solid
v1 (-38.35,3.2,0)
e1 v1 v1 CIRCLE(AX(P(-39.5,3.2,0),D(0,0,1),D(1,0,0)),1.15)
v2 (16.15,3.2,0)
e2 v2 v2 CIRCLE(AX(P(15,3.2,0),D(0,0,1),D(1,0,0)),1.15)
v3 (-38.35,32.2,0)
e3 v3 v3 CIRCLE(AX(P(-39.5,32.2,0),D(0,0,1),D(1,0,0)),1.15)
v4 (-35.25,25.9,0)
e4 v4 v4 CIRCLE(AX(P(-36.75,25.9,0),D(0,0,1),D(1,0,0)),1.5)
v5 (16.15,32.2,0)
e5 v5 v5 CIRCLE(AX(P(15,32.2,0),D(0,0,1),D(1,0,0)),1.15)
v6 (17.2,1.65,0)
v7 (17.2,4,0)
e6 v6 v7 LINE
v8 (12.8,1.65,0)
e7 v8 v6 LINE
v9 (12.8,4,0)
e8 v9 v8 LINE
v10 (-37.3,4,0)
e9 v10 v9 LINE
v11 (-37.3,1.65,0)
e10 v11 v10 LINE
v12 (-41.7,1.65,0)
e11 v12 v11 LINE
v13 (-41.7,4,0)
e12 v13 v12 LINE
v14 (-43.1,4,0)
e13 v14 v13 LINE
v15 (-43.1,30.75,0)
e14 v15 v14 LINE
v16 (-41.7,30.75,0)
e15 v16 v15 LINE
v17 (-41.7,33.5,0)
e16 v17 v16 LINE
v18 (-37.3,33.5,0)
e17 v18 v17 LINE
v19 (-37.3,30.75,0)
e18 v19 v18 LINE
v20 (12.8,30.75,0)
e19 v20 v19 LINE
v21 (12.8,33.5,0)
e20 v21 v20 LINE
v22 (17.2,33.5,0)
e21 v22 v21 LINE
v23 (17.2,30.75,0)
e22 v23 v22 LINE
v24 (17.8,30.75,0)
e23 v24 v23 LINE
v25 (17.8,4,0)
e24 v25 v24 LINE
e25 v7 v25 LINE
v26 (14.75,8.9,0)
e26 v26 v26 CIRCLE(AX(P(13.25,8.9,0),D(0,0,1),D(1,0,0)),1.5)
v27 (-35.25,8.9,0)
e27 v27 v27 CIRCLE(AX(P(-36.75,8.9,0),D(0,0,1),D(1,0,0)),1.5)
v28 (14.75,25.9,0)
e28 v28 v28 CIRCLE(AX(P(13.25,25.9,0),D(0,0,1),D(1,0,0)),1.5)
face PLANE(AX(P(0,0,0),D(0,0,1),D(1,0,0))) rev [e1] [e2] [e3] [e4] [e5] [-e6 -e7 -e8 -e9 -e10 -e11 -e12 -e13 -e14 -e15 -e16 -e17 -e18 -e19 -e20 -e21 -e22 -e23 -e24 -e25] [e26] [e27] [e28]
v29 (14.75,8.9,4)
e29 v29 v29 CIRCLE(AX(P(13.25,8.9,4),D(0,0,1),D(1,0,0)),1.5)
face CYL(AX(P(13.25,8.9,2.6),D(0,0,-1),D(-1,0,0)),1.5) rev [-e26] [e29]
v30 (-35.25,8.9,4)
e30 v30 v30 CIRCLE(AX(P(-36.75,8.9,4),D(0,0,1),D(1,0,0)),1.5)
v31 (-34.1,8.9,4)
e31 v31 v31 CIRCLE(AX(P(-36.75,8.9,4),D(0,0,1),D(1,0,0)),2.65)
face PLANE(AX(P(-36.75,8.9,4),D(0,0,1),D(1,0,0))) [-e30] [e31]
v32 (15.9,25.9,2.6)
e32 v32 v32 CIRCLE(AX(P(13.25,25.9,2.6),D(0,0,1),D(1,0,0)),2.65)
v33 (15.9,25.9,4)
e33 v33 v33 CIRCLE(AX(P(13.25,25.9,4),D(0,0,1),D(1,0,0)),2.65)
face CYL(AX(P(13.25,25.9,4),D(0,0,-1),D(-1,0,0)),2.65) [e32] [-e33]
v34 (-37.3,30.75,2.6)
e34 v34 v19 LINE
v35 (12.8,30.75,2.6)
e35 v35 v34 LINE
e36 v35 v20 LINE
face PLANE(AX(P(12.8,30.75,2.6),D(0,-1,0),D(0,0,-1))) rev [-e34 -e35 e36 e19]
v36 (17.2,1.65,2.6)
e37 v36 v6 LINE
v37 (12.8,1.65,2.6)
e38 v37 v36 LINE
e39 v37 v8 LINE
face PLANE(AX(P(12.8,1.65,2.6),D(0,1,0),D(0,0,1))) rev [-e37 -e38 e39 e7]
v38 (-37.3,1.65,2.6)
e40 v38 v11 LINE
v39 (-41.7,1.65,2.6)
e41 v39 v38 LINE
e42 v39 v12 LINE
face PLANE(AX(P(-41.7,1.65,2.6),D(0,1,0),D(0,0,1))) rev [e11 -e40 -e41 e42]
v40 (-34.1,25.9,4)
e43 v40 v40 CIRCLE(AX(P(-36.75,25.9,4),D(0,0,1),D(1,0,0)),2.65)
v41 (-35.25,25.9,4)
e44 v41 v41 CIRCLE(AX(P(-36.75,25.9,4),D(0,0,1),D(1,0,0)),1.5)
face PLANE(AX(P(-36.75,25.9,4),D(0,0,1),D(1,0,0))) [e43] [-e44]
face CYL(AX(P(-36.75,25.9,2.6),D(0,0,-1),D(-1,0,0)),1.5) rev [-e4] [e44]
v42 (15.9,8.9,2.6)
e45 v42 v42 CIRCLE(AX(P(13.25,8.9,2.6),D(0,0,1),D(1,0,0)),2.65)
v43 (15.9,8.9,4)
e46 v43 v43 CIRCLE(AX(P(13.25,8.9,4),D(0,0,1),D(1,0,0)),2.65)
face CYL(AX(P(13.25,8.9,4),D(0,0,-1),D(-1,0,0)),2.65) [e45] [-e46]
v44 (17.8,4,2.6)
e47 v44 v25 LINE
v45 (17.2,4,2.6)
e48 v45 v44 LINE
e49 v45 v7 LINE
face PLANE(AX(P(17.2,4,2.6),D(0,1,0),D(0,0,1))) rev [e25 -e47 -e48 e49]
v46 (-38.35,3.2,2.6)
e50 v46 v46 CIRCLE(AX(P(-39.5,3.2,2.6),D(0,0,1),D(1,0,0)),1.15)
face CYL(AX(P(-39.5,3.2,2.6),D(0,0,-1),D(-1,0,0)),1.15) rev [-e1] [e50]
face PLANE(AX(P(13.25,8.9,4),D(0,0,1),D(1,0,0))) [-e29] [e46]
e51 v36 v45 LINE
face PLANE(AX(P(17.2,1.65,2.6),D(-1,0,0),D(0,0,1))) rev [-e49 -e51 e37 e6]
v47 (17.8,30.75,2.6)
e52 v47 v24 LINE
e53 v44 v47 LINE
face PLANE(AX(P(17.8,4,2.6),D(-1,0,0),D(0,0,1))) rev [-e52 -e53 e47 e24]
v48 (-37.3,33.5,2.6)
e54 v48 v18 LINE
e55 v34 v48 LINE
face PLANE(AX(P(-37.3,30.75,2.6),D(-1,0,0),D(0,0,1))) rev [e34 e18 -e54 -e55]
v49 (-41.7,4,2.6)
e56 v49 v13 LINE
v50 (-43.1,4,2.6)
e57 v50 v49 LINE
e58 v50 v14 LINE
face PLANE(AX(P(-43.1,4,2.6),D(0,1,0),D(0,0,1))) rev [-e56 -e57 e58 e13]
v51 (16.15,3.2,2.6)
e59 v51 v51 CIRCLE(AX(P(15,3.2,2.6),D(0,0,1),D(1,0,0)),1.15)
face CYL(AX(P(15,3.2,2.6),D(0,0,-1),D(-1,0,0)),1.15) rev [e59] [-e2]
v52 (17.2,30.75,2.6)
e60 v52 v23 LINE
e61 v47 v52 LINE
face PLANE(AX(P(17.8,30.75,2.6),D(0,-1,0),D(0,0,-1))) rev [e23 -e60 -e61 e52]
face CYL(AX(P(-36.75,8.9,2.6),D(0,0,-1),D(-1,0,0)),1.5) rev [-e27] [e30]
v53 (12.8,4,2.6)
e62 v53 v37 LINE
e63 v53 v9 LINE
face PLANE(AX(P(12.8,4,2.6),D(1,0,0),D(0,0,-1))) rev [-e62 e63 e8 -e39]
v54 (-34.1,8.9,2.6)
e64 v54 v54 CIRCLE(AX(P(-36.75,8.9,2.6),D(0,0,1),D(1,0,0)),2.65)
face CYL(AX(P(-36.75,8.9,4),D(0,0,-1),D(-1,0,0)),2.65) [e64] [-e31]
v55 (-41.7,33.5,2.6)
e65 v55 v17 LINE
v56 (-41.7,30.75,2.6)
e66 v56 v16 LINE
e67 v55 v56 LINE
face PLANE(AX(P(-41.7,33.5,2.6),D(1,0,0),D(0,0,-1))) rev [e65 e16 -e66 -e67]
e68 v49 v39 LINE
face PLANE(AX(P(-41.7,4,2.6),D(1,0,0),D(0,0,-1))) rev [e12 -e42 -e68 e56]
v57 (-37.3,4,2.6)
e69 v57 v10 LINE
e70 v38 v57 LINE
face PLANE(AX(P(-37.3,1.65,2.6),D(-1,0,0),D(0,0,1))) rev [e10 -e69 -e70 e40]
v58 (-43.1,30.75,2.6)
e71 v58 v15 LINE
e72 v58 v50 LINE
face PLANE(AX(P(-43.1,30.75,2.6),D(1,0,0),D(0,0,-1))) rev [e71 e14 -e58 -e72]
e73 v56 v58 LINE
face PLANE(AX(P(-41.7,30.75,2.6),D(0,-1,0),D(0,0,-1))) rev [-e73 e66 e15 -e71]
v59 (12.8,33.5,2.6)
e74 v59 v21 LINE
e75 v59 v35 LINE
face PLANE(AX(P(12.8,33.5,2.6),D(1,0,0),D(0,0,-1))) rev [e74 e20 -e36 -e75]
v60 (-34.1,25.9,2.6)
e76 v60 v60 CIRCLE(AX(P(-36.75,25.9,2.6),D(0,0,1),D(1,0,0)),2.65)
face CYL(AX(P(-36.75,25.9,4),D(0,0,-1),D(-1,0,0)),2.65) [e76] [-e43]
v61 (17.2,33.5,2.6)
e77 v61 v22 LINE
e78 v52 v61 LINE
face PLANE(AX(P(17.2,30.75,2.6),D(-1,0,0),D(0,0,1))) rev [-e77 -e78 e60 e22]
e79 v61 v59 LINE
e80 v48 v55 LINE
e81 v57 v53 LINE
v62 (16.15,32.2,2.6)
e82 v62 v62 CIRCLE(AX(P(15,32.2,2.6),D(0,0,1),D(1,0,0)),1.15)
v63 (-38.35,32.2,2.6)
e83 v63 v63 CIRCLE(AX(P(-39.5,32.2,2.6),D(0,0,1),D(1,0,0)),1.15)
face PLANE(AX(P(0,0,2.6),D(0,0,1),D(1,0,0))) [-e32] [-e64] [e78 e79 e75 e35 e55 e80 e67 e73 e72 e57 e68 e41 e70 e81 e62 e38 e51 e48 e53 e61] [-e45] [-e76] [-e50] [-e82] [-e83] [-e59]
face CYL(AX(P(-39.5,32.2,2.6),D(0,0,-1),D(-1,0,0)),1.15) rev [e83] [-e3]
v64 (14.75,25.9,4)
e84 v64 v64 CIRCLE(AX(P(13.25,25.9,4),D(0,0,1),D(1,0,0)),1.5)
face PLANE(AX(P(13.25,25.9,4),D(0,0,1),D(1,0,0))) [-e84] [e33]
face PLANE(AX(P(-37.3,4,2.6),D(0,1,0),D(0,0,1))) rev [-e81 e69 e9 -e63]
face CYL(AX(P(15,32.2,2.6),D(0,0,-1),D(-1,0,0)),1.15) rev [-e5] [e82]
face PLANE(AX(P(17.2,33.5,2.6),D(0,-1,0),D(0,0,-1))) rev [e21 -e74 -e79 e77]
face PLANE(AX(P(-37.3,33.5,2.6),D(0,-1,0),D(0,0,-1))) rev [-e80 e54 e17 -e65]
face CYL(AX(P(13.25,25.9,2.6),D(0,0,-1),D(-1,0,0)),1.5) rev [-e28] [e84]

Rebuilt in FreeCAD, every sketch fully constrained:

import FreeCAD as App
import Part
import Sketcher

V = App.Vector
Q = App.Units.Quantity

doc = App.newDocument("Part")
body = doc.addObject("PartDesign::Body", "Body")

sketch1 = body.newObject("Sketcher::SketchObject", "Sketch")
sketch1.AttachmentSupport = (doc.getObject("XY_Plane"), [""])
sketch1.MapMode = "FlatFace"
sketch1.addGeometry(Part.LineSegment(V(-43.1, 4, 0), V(-41.7, 4, 0)), False)
sketch1.addGeometry(Part.LineSegment(V(-41.7, 4, 0), V(-41.7, 1.6, 0)), False)
sketch1.addGeometry(Part.LineSegment(V(-41.7, 1.6, 0), V(-37.3, 1.6, 0)), False)
sketch1.addGeometry(Part.LineSegment(V(-37.3, 1.6, 0), V(-37.3, 4, 0)), False)
sketch1.addGeometry(Part.LineSegment(V(-37.3, 4, 0), V(12.8, 4, 0)), False)
sketch1.addGeometry(Part.LineSegment(V(12.8, 4, 0), V(12.8, 1.6, 0)), False)
sketch1.addGeometry(Part.LineSegment(V(12.8, 1.6, 0), V(17.2, 1.6, 0)), False)
sketch1.addGeometry(Part.LineSegment(V(17.2, 1.6, 0), V(17.2, 4, 0)), False)
sketch1.addGeometry(Part.LineSegment(V(17.2, 4, 0), V(17.8, 4, 0)), False)
sketch1.addGeometry(Part.LineSegment(V(17.8, 4, 0), V(17.8, 30.8, 0)), False)
sketch1.addGeometry(Part.LineSegment(V(17.8, 30.8, 0), V(17.2, 30.8, 0)), False)
sketch1.addGeometry(Part.LineSegment(V(17.2, 30.8, 0), V(17.2, 33.5, 0)), False)
sketch1.addGeometry(Part.LineSegment(V(17.2, 33.5, 0), V(12.8, 33.5, 0)), False)
sketch1.addGeometry(Part.LineSegment(V(12.8, 33.5, 0), V(12.8, 30.8, 0)), False)
sketch1.addGeometry(Part.LineSegment(V(12.8, 30.8, 0), V(-37.3, 30.8, 0)), False)
sketch1.addGeometry(Part.LineSegment(V(-37.3, 30.8, 0), V(-37.3, 33.5, 0)), False)
sketch1.addGeometry(Part.LineSegment(V(-37.3, 33.5, 0), V(-41.7, 33.5, 0)), False)
sketch1.addGeometry(Part.LineSegment(V(-41.7, 33.5, 0), V(-41.7, 30.8, 0)), False)
sketch1.addGeometry(Part.LineSegment(V(-41.7, 30.8, 0), V(-43.1, 30.8, 0)), False)
sketch1.addGeometry(Part.LineSegment(V(-43.1, 30.8, 0), V(-43.1, 4, 0)), False)
sketch1.addGeometry(Part.Circle(V(-39.5, 3.2, 0), V(0, 0, 1), 1.1), False)
sketch1.addGeometry(Part.Circle(V(-36.8, 8.9, 0), V(0, 0, 1), 1.5), False)
sketch1.addGeometry(Part.Circle(V(15, 3.2, 0), V(0, 0, 1), 1.1), False)
sketch1.addGeometry(Part.Circle(V(13.2, 8.9, 0), V(0, 0, 1), 1.5), False)
sketch1.addGeometry(Part.Circle(V(-36.8, 25.9, 0), V(0, 0, 1), 1.5), False)
sketch1.addGeometry(Part.Circle(V(-39.5, 32.2, 0), V(0, 0, 1), 1.1), False)
sketch1.addGeometry(Part.Circle(V(13.2, 25.9, 0), V(0, 0, 1), 1.5), False)
sketch1.addGeometry(Part.Circle(V(15, 32.2, 0), V(0, 0, 1), 1.1), False)
sketch1.addConstraint(Sketcher.Constraint("Coincident", 0, 2, 1, 1))
sketch1.addConstraint(Sketcher.Constraint("Coincident", 1, 2, 2, 1))
sketch1.addConstraint(Sketcher.Constraint("Coincident", 2, 2, 3, 1))
sketch1.addConstraint(Sketcher.Constraint("Coincident", 3, 2, 4, 1))
sketch1.addConstraint(Sketcher.Constraint("Coincident", 4, 2, 5, 1))
sketch1.addConstraint(Sketcher.Constraint("Coincident", 5, 2, 6, 1))
sketch1.addConstraint(Sketcher.Constraint("Coincident", 6, 2, 7, 1))
sketch1.addConstraint(Sketcher.Constraint("Coincident", 7, 2, 8, 1))
sketch1.addConstraint(Sketcher.Constraint("Coincident", 8, 2, 9, 1))
sketch1.addConstraint(Sketcher.Constraint("Coincident", 9, 2, 10, 1))
sketch1.addConstraint(Sketcher.Constraint("Coincident", 10, 2, 11, 1))
sketch1.addConstraint(Sketcher.Constraint("Coincident", 11, 2, 12, 1))
sketch1.addConstraint(Sketcher.Constraint("Coincident", 12, 2, 13, 1))
sketch1.addConstraint(Sketcher.Constraint("Coincident", 13, 2, 14, 1))
sketch1.addConstraint(Sketcher.Constraint("Coincident", 14, 2, 15, 1))
sketch1.addConstraint(Sketcher.Constraint("Coincident", 15, 2, 16, 1))
sketch1.addConstraint(Sketcher.Constraint("Coincident", 16, 2, 17, 1))
sketch1.addConstraint(Sketcher.Constraint("Coincident", 17, 2, 18, 1))
sketch1.addConstraint(Sketcher.Constraint("Coincident", 18, 2, 19, 1))
sketch1.addConstraint(Sketcher.Constraint("Coincident", 19, 2, 0, 1))
sketch1.addConstraint(Sketcher.Constraint("Horizontal", 0))
sketch1.addConstraint(Sketcher.Constraint("Vertical", 1))
sketch1.addConstraint(Sketcher.Constraint("Horizontal", 2))
sketch1.addConstraint(Sketcher.Constraint("Vertical", 3))
sketch1.addConstraint(Sketcher.Constraint("Horizontal", 4))
sketch1.addConstraint(Sketcher.Constraint("Vertical", 5))
sketch1.addConstraint(Sketcher.Constraint("Horizontal", 6))
sketch1.addConstraint(Sketcher.Constraint("Vertical", 7))
sketch1.addConstraint(Sketcher.Constraint("Horizontal", 8))
sketch1.addConstraint(Sketcher.Constraint("Vertical", 9))
sketch1.addConstraint(Sketcher.Constraint("Horizontal", 10))
sketch1.addConstraint(Sketcher.Constraint("Vertical", 11))
sketch1.addConstraint(Sketcher.Constraint("Horizontal", 12))
sketch1.addConstraint(Sketcher.Constraint("Vertical", 13))
sketch1.addConstraint(Sketcher.Constraint("Horizontal", 14))
sketch1.addConstraint(Sketcher.Constraint("Vertical", 15))
sketch1.addConstraint(Sketcher.Constraint("Horizontal", 16))
sketch1.addConstraint(Sketcher.Constraint("Vertical", 17))
sketch1.addConstraint(Sketcher.Constraint("Horizontal", 18))
sketch1.addConstraint(Sketcher.Constraint("Vertical", 19))
sketch1.addConstraint(Sketcher.Constraint("Equal", 20, 22))
sketch1.addConstraint(Sketcher.Constraint("Equal", 21, 23))
sketch1.addConstraint(Sketcher.Constraint("Equal", 23, 24))
sketch1.addConstraint(Sketcher.Constraint("Equal", 22, 25))
sketch1.addConstraint(Sketcher.Constraint("Equal", 24, 26))
sketch1.addConstraint(Sketcher.Constraint("Equal", 25, 27))
sketch1.addConstraint(Sketcher.Constraint("Horizontal", 20, 3, 22, 3))
sketch1.addConstraint(Sketcher.Constraint("Horizontal", 21, 3, 23, 3))
sketch1.addConstraint(Sketcher.Constraint("Horizontal", 24, 3, 26, 3))
sketch1.addConstraint(Sketcher.Constraint("Horizontal", 25, 3, 27, 3))
sketch1.addConstraint(Sketcher.Constraint("Horizontal", 0, 2, 3, 2))
sketch1.addConstraint(Sketcher.Constraint("Horizontal", 2, 2, 5, 2))
sketch1.addConstraint(Sketcher.Constraint("Horizontal", 4, 2, 7, 2))
sketch1.addConstraint(Sketcher.Constraint("Horizontal", 10, 2, 13, 2))
sketch1.addConstraint(Sketcher.Constraint("Horizontal", 12, 2, 15, 2))
sketch1.addConstraint(Sketcher.Constraint("Horizontal", 14, 2, 17, 2))
sketch1.addConstraint(Sketcher.Constraint("Vertical", 21, 3, 24, 3))
sketch1.addConstraint(Sketcher.Constraint("Vertical", 20, 3, 25, 3))
sketch1.addConstraint(Sketcher.Constraint("Vertical", 23, 3, 26, 3))
sketch1.addConstraint(Sketcher.Constraint("Vertical", 22, 3, 27, 3))
sketch1.addConstraint(Sketcher.Constraint("Vertical", 7, 2, 10, 2))
sketch1.addConstraint(Sketcher.Constraint("Vertical", 5, 2, 12, 2))
sketch1.addConstraint(Sketcher.Constraint("Vertical", 3, 2, 14, 2))
sketch1.addConstraint(Sketcher.Constraint("Vertical", 1, 2, 16, 2))
sketch1.addConstraint(Sketcher.Constraint("Equal", 2, 6))
sketch1.addConstraint(Sketcher.Constraint("Diameter", 21, Q("3 mm")))
sketch1.addConstraint(Sketcher.Constraint("Diameter", 20, Q("2.3 mm")))
sketch1.addConstraint(Sketcher.Constraint("DistanceX", 0, 1, 0, 2, Q("1.4 mm")))
sketch1.addConstraint(Sketcher.Constraint("DistanceX", 2, 1, 2, 2, Q("4.4 mm")))
sketch1.addConstraint(Sketcher.Constraint("DistanceX", 4, 1, 4, 2, Q("50.1 mm")))
sketch1.addConstraint(Sketcher.Constraint("DistanceX", 8, 1, 8, 2, Q("0.6 mm")))
sketch1.addConstraint(Sketcher.Constraint("DistanceX", -1, 1, 22, 3, Q("15 mm")))
sketch1.addConstraint(Sketcher.Constraint("DistanceY", -1, 1, 0, 2, Q("4 mm")))
sketch1.addConstraint(Sketcher.Constraint("DistanceX", 21, 3, 23, 3, Q("50 mm")))
sketch1.addConstraint(Sketcher.Constraint("DistanceY", 21, 3, 24, 3, Q("17 mm")))
sketch1.addConstraint(Sketcher.Constraint("DistanceY", 20, 3, 25, 3, Q("29 mm")))
sketch1.addConstraint(Sketcher.Constraint("DistanceY", 1, 2, 1, 1, Q("2.35 mm")))
sketch1.addConstraint(Sketcher.Constraint("DistanceY", 9, 1, 9, 2, Q("26.75 mm")))
sketch1.addConstraint(Sketcher.Constraint("DistanceY", 11, 1, 11, 2, Q("2.75 mm")))
sketch1.addConstraint(Sketcher.Constraint("DistanceX", 20, 3, -1, 1, Q("39.5 mm")))
sketch1.addConstraint(Sketcher.Constraint("DistanceY", -1, 1, 20, 3, Q("3.2 mm")))
sketch1.addConstraint(Sketcher.Constraint("DistanceY", -1, 1, 21, 3, Q("8.9 mm")))
sketch1.addConstraint(Sketcher.Constraint("DistanceX", 0, 2, -1, 1, Q("41.7 mm")))
sketch1.addConstraint(Sketcher.Constraint("DistanceX", 21, 3, -1, 1, Q("36.75 mm")))
pad1 = body.newObject("PartDesign::Pad", "Pad")
pad1.Profile = sketch1
pad1.Length = 2.6

sketch2 = body.newObject("Sketcher::SketchObject", "Sketch001")
sketch2.AttachmentSupport = (doc.getObject("XY_Plane"), [""])
sketch2.MapMode = "FlatFace"
sketch2.AttachmentOffset = App.Placement(V(0, 0, 2.6), App.Rotation())
sketch2.addGeometry(Part.Circle(V(-36.8, 8.9, 0), V(0, 0, 1), 2.6), False)
sketch2.addGeometry(Part.Circle(V(-36.8, 8.9, 0), V(0, 0, 1), 1.5), False)
sketch2.addGeometry(Part.Circle(V(13.2, 8.9, 0), V(0, 0, 1), 2.6), False)
sketch2.addGeometry(Part.Circle(V(13.2, 8.9, 0), V(0, 0, 1), 1.5), False)
sketch2.addGeometry(Part.Circle(V(-36.8, 25.9, 0), V(0, 0, 1), 2.6), False)
sketch2.addGeometry(Part.Circle(V(-36.8, 25.9, 0), V(0, 0, 1), 1.5), False)
sketch2.addGeometry(Part.Circle(V(13.2, 25.9, 0), V(0, 0, 1), 2.6), False)
sketch2.addGeometry(Part.Circle(V(13.2, 25.9, 0), V(0, 0, 1), 1.5), False)
sketch2.addConstraint(Sketcher.Constraint("Coincident", 1, 3, 0, 3))
sketch2.addConstraint(Sketcher.Constraint("Coincident", 3, 3, 2, 3))
sketch2.addConstraint(Sketcher.Constraint("Coincident", 5, 3, 4, 3))
sketch2.addConstraint(Sketcher.Constraint("Coincident", 7, 3, 6, 3))
sketch2.addConstraint(Sketcher.Constraint("Equal", 0, 2))
sketch2.addConstraint(Sketcher.Constraint("Equal", 1, 3))
sketch2.addConstraint(Sketcher.Constraint("Equal", 2, 4))
sketch2.addConstraint(Sketcher.Constraint("Equal", 3, 5))
sketch2.addConstraint(Sketcher.Constraint("Equal", 4, 6))
sketch2.addConstraint(Sketcher.Constraint("Equal", 5, 7))
sketch2.addConstraint(Sketcher.Constraint("Horizontal", 1, 3, 2, 3))
sketch2.addConstraint(Sketcher.Constraint("Horizontal", 5, 3, 6, 3))
sketch2.addConstraint(Sketcher.Constraint("Vertical", 1, 3, 4, 3))
sketch2.addConstraint(Sketcher.Constraint("Vertical", 3, 3, 6, 3))
sketch2.addConstraint(Sketcher.Constraint("Diameter", 1, Q("3 mm")))
sketch2.addConstraint(Sketcher.Constraint("Diameter", 0, Q("5.3 mm")))
sketch2.addConstraint(Sketcher.Constraint("DistanceX", 0, 3, 2, 3, Q("50 mm")))
sketch2.addConstraint(Sketcher.Constraint("DistanceY", 0, 3, 4, 3, Q("17 mm")))
sketch2.addConstraint(Sketcher.Constraint("DistanceY", -1, 1, 0, 3, Q("8.9 mm")))
sketch2.addConstraint(Sketcher.Constraint("DistanceX", 0, 3, -1, 1, Q("36.75 mm")))
pad2 = body.newObject("PartDesign::Pad", "Pad001")
pad2.Profile = sketch2
pad2.Length = 1.4

doc.recompute()
